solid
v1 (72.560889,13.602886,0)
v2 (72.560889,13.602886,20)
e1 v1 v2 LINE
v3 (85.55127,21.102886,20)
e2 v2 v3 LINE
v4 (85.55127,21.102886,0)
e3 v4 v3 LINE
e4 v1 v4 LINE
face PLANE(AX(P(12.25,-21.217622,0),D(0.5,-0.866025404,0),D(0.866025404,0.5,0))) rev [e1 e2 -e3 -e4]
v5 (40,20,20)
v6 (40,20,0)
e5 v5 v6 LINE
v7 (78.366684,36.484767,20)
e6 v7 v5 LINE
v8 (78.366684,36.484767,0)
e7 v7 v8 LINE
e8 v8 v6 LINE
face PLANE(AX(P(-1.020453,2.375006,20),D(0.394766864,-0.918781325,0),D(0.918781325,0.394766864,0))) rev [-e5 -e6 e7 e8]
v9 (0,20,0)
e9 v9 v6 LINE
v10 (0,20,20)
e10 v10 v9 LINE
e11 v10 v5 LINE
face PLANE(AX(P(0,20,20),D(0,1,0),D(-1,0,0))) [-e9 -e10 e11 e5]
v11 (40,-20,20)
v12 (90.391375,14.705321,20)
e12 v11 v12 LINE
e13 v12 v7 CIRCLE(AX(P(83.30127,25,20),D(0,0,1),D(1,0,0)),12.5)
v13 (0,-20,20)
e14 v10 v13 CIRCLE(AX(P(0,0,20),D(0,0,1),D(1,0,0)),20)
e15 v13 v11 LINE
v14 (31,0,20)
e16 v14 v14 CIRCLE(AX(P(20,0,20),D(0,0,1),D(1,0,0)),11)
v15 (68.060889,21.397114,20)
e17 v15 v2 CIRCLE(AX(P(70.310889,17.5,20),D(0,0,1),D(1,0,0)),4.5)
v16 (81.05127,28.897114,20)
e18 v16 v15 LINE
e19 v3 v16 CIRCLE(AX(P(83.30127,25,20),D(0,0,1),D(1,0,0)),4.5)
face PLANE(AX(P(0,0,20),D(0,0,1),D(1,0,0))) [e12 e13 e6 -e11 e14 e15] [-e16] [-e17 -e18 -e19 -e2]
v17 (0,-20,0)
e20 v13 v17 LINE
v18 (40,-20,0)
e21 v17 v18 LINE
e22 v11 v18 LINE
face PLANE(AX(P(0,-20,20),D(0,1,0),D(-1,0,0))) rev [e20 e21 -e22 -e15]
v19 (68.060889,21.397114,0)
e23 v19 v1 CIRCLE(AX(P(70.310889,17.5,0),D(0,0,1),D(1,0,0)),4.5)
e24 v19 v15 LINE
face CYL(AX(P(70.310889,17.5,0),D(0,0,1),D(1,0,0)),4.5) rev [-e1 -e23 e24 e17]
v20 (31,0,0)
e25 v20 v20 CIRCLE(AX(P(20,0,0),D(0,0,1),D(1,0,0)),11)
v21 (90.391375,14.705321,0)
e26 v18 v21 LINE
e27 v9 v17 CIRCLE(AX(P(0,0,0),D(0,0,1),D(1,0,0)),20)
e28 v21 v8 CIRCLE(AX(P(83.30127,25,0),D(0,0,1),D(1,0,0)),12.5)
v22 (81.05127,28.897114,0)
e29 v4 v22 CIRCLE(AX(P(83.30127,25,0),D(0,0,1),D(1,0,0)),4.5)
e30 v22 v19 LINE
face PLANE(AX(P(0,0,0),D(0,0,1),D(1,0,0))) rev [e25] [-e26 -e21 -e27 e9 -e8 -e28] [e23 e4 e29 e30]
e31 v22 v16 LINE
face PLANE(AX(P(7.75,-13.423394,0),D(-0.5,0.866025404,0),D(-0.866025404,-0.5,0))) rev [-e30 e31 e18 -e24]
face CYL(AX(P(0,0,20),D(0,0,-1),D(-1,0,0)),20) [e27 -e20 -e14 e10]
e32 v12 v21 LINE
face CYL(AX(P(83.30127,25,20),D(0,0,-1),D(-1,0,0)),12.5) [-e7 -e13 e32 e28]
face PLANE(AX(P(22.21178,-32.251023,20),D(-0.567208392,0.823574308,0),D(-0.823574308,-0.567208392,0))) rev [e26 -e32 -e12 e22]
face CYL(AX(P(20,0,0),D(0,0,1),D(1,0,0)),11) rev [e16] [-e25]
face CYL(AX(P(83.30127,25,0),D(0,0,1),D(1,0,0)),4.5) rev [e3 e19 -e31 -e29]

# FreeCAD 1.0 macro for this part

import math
import FreeCAD as App
import Part
import Sketcher

V = App.Vector
Q = App.Units.Quantity

doc = App.newDocument("Part")
body = doc.addObject("PartDesign::Body", "Body")

# Sketch on XY plane
sketch1 = body.newObject("Sketcher::SketchObject", "Sketch")
sketch1.AttachmentSupport = (doc.getObject("XY_Plane"), [""])
sketch1.MapMode = "FlatFace"
sketch1.addGeometry(Part.LineSegment(V(40, 20, 0), V(0, 20, 0)), False)
sketch1.addGeometry(Part.ArcOfCircle(Part.Circle(V(0, 0, 0), V(0, 0, 1), 20), math.radians(90), math.radians(270)), False)
sketch1.addGeometry(Part.LineSegment(V(0, -20, 0), V(40, -20, 0)), False)
sketch1.addGeometry(Part.LineSegment(V(40, -20, 0), V(40, 20, 0)), False)
sketch1.addConstraint(Sketcher.Constraint("Tangent", 0, 2, 1, 1))
sketch1.addConstraint(Sketcher.Constraint("Tangent", 1, 2, 2, 1))
sketch1.addConstraint(Sketcher.Constraint("Coincident", 2, 2, 3, 1))
sketch1.addConstraint(Sketcher.Constraint("Coincident", 3, 2, 0, 1))
sketch1.addConstraint(Sketcher.Constraint("Horizontal", 0))
sketch1.addConstraint(Sketcher.Constraint("Horizontal", 2))
sketch1.addConstraint(Sketcher.Constraint("Vertical", 3))
sketch1.addConstraint(Sketcher.Constraint("Coincident", 1, 3, -1, 1))
sketch1.addConstraint(Sketcher.Constraint("Equal", 2, 3))
sketch1.addConstraint(Sketcher.Constraint("Radius", 1, 20.0))
pad1 = body.newObject("PartDesign::Pad", "Pad")
pad1.Profile = sketch1
pad1.Length = 20

# Sketch on XY plane
sketch2 = body.newObject("Sketcher::SketchObject", "Sketch001")
sketch2.AttachmentSupport = (doc.getObject("XY_Plane"), [""])
sketch2.MapMode = "FlatFace"
sketch2.addGeometry(Part.LineSegment(V(78, 36, 0), V(40, 20, 0)), False)
sketch2.addGeometry(Part.LineSegment(V(40, 20, 0), V(40, -20, 0)), False)
sketch2.addGeometry(Part.LineSegment(V(40, -20, 0), V(90, 15, 0)), False)
sketch2.addGeometry(Part.ArcOfCircle(Part.Circle(V(83, 25, 0), V(0, 0, 1), 12), math.radians(-55), math.radians(113)), False)
sketch2.addConstraint(Sketcher.Constraint("Coincident", 0, 2, 1, 1))
sketch2.addConstraint(Sketcher.Constraint("Coincident", 1, 2, 2, 1))
sketch2.addConstraint(Sketcher.Constraint("Tangent", 2, 2, 3, 1))
sketch2.addConstraint(Sketcher.Constraint("Tangent", 3, 2, 0, 1))
sketch2.addConstraint(Sketcher.Constraint("Vertical", 1))
sketch2.addConstraint(Sketcher.Constraint("Radius", 3, 12.5))
sketch2.addConstraint(Sketcher.Constraint("DistanceY", 1, 2, 1, 1, 40.0))
sketch2.addConstraint(Sketcher.Constraint("DistanceY", -1, 1, 3, 3, 25.0))
sketch2.addConstraint(Sketcher.Constraint("DistanceX", -1, 1, 0, 2, 40.0))
sketch2.addConstraint(Sketcher.Constraint("DistanceY", -1, 1, 0, 2, 20.0))
sketch2.addConstraint(Sketcher.Constraint("Distance", 2, 61.186191))
pad2 = body.newObject("PartDesign::Pad", "Pad001")
pad2.Profile = sketch2
pad2.Length = 20

# Sketch on XY plane
sketch3 = body.newObject("Sketcher::SketchObject", "Sketch002")
sketch3.AttachmentSupport = (doc.getObject("XY_Plane"), [""])
sketch3.MapMode = "FlatFace"
sketch3.AttachmentOffset = App.Placement(V(0, 0, 20), App.Rotation())
sketch3.addGeometry(Part.LineSegment(V(81.1, 28.9, 0), V(68.1, 21.4, 0)), False)
sketch3.addGeometry(Part.ArcOfCircle(Part.Circle(V(70.3, 17.5, 0), V(0, 0, 1), 4.5), math.radians(120), math.radians(300)), False)
sketch3.addGeometry(Part.LineSegment(V(72.6, 13.6, 0), V(85.6, 21.1, 0)), False)
sketch3.addGeometry(Part.ArcOfCircle(Part.Circle(V(83.3, 25, 0), V(0, 0, 1), 4.5), math.radians(-60), math.radians(120)), False)
sketch3.addGeometry(Part.Circle(V(20, 0, 0), V(0, 0, 1), 11), False)
sketch3.addConstraint(Sketcher.Constraint("Tangent", 0, 2, 1, 1))
sketch3.addConstraint(Sketcher.Constraint("Tangent", 1, 2, 2, 1))
sketch3.addConstraint(Sketcher.Constraint("Tangent", 2, 2, 3, 1))
sketch3.addConstraint(Sketcher.Constraint("Tangent", 3, 2, 0, 1))
sketch3.addConstraint(Sketcher.Constraint("Equal", 1, 3))
sketch3.addConstraint(Sketcher.Constraint("PointOnObject", 4, 3, -1))
sketch3.addConstraint(Sketcher.Constraint("Diameter", 4, 22.0))
sketch3.addConstraint(Sketcher.Constraint("Radius", 1, 4.5))
sketch3.addConstraint(Sketcher.Constraint("Angle", 0, Q("-150 deg")))
sketch3.addConstraint(Sketcher.Constraint("Distance", 0, 15.0))
sketch3.addConstraint(Sketcher.Constraint("DistanceY", -1, 1, 3, 3, 25.0))
sketch3.addConstraint(Sketcher.Constraint("DistanceX", -1, 1, 4, 3, 20.0))
sketch3.addConstraint(Sketcher.Constraint("DistanceX", -1, 1, 1, 3, 70.310889))
pocket1 = body.newObject("PartDesign::Pocket", "Pocket")
pocket1.Profile = sketch3
pocket1.Type = "ThroughAll"

doc.recompute()
